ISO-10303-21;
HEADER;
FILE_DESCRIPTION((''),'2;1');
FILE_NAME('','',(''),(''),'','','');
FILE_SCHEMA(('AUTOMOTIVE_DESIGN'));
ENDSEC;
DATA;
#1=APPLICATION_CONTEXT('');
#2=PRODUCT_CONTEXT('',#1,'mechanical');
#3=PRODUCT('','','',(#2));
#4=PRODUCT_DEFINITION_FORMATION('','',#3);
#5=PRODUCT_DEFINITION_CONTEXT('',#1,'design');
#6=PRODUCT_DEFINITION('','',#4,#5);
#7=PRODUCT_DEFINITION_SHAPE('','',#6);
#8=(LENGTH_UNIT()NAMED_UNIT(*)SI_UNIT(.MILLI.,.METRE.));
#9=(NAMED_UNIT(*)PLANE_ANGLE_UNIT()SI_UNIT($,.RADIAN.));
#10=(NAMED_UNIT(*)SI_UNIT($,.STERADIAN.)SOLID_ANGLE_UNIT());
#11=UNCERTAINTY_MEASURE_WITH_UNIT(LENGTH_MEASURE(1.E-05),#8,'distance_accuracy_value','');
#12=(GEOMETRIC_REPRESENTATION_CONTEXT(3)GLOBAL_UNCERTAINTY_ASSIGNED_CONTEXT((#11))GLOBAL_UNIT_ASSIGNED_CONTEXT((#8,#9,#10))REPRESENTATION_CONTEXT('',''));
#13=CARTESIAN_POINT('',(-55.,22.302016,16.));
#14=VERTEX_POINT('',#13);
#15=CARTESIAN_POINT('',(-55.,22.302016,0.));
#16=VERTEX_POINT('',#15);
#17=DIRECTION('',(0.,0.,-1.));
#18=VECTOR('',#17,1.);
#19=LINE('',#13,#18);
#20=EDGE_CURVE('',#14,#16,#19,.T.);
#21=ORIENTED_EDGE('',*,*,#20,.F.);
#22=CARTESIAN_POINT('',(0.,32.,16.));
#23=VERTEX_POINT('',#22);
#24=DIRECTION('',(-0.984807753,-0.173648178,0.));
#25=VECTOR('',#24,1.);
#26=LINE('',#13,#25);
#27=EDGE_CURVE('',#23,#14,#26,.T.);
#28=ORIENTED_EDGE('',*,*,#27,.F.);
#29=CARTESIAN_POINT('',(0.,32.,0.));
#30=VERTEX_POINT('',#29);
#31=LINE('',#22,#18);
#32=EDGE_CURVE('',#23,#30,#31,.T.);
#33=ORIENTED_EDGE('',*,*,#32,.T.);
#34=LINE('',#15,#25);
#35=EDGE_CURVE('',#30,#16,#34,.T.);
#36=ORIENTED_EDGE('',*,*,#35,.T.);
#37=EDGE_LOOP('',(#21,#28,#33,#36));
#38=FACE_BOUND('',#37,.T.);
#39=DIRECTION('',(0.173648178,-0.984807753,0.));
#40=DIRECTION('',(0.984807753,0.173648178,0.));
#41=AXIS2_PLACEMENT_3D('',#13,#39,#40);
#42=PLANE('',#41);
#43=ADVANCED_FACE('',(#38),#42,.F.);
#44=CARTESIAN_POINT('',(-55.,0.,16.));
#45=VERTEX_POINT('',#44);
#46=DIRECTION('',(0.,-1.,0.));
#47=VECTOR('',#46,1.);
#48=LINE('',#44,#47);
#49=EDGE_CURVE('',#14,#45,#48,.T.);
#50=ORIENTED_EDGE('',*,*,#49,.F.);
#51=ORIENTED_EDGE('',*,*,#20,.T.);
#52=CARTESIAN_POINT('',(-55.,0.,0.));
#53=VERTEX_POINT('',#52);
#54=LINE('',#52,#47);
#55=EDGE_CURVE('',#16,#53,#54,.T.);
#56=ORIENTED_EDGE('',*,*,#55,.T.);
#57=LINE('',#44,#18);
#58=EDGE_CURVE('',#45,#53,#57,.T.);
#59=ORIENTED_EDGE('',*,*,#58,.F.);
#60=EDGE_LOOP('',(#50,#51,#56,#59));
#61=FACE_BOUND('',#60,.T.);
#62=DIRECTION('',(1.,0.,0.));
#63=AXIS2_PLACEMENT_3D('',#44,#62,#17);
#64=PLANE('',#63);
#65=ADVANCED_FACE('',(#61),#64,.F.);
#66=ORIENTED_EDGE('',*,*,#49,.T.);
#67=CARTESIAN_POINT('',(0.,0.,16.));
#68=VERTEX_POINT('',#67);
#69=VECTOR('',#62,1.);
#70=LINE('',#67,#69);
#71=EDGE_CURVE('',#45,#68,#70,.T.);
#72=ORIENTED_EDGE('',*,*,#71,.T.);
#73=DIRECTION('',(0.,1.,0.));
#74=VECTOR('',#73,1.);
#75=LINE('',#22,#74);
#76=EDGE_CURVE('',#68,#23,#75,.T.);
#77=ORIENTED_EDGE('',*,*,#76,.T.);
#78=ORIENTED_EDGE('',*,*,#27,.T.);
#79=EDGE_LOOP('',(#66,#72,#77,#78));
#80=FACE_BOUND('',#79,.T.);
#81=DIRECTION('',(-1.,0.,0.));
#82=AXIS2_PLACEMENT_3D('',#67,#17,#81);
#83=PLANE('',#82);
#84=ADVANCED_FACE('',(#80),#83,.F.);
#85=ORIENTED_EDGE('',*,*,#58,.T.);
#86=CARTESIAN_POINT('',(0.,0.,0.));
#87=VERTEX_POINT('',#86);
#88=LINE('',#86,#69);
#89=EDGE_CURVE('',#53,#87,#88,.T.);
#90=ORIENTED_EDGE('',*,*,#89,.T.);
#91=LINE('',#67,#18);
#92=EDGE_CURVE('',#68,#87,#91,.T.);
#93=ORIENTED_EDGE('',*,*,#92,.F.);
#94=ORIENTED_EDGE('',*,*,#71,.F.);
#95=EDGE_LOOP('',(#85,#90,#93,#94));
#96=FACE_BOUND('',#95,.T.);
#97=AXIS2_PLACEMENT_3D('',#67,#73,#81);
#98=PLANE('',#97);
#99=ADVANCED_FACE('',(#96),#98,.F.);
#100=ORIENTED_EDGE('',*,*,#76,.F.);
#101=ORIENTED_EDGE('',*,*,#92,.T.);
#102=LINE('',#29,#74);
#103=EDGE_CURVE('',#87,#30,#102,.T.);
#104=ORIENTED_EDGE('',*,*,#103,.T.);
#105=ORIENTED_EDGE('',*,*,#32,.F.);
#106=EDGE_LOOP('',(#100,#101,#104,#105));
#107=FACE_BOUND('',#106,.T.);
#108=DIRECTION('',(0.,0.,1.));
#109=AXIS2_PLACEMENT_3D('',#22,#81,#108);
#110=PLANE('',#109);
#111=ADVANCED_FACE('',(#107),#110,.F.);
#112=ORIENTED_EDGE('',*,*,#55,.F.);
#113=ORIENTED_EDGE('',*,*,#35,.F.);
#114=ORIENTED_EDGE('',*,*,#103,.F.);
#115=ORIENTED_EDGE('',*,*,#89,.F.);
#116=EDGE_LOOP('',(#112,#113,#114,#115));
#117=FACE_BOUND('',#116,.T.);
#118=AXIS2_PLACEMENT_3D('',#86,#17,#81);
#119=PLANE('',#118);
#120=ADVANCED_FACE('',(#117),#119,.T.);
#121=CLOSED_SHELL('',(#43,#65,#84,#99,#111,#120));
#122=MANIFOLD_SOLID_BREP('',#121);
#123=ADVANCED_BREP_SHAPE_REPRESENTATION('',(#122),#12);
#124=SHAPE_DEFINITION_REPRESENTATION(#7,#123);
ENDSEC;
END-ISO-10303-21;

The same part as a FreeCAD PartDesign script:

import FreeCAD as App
import Part
import Sketcher
from FreeCAD import Vector
Q = App.Units.Quantity

doc = App.newDocument("Part")
body = doc.addObject("PartDesign::Body", "Body")

# Sketch on XY plane
sketch1 = doc.addObject("Sketcher::SketchObject", "Sketch")
body.addObject(sketch1)
sketch1.AttachmentSupport = (doc.XY_Plane, [""])
sketch1.MapMode = "FlatFace"
sketch1.addGeometry(Part.LineSegment(Vector(-55, 0, 0), Vector(0, 0, 0)), False)
sketch1.addGeometry(Part.LineSegment(Vector(0, 0, 0), Vector(0, 32, 0)), False)
sketch1.addGeometry(Part.LineSegment(Vector(0, 32, 0), Vector(-55, 22.302016, 0)), False)
sketch1.addGeometry(Part.LineSegment(Vector(-55, 22.302016, 0), Vector(-55, 0, 0)), False)
sketch1.addConstraint(Sketcher.Constraint("Coincident", 0, 2, 1, 1))
sketch1.addConstraint(Sketcher.Constraint("Coincident", 1, 2, 2, 1))
sketch1.addConstraint(Sketcher.Constraint("Coincident", 2, 2, 3, 1))
sketch1.addConstraint(Sketcher.Constraint("Coincident", 3, 2, 0, 1))
sketch1.addConstraint(Sketcher.Constraint("Horizontal", 0))
sketch1.addConstraint(Sketcher.Constraint("Vertical", 1))
sketch1.addConstraint(Sketcher.Constraint("Vertical", 3))
sketch1.addConstraint(Sketcher.Constraint("Coincident", 0, 2, -1, 1))
sketch1.addConstraint(Sketcher.Constraint("DistanceX", 0, 1, 0, 2, 55.0))
sketch1.addConstraint(Sketcher.Constraint("DistanceY", 1, 1, 1, 2, 32.0))
sketch1.addConstraint(Sketcher.Constraint("Angle", 2, Q("-170 deg")))
pad1 = doc.addObject("PartDesign::Pad", "Pad")
body.addObject(pad1)
pad1.Profile = sketch1
pad1.Length = 16

doc.recompute()
